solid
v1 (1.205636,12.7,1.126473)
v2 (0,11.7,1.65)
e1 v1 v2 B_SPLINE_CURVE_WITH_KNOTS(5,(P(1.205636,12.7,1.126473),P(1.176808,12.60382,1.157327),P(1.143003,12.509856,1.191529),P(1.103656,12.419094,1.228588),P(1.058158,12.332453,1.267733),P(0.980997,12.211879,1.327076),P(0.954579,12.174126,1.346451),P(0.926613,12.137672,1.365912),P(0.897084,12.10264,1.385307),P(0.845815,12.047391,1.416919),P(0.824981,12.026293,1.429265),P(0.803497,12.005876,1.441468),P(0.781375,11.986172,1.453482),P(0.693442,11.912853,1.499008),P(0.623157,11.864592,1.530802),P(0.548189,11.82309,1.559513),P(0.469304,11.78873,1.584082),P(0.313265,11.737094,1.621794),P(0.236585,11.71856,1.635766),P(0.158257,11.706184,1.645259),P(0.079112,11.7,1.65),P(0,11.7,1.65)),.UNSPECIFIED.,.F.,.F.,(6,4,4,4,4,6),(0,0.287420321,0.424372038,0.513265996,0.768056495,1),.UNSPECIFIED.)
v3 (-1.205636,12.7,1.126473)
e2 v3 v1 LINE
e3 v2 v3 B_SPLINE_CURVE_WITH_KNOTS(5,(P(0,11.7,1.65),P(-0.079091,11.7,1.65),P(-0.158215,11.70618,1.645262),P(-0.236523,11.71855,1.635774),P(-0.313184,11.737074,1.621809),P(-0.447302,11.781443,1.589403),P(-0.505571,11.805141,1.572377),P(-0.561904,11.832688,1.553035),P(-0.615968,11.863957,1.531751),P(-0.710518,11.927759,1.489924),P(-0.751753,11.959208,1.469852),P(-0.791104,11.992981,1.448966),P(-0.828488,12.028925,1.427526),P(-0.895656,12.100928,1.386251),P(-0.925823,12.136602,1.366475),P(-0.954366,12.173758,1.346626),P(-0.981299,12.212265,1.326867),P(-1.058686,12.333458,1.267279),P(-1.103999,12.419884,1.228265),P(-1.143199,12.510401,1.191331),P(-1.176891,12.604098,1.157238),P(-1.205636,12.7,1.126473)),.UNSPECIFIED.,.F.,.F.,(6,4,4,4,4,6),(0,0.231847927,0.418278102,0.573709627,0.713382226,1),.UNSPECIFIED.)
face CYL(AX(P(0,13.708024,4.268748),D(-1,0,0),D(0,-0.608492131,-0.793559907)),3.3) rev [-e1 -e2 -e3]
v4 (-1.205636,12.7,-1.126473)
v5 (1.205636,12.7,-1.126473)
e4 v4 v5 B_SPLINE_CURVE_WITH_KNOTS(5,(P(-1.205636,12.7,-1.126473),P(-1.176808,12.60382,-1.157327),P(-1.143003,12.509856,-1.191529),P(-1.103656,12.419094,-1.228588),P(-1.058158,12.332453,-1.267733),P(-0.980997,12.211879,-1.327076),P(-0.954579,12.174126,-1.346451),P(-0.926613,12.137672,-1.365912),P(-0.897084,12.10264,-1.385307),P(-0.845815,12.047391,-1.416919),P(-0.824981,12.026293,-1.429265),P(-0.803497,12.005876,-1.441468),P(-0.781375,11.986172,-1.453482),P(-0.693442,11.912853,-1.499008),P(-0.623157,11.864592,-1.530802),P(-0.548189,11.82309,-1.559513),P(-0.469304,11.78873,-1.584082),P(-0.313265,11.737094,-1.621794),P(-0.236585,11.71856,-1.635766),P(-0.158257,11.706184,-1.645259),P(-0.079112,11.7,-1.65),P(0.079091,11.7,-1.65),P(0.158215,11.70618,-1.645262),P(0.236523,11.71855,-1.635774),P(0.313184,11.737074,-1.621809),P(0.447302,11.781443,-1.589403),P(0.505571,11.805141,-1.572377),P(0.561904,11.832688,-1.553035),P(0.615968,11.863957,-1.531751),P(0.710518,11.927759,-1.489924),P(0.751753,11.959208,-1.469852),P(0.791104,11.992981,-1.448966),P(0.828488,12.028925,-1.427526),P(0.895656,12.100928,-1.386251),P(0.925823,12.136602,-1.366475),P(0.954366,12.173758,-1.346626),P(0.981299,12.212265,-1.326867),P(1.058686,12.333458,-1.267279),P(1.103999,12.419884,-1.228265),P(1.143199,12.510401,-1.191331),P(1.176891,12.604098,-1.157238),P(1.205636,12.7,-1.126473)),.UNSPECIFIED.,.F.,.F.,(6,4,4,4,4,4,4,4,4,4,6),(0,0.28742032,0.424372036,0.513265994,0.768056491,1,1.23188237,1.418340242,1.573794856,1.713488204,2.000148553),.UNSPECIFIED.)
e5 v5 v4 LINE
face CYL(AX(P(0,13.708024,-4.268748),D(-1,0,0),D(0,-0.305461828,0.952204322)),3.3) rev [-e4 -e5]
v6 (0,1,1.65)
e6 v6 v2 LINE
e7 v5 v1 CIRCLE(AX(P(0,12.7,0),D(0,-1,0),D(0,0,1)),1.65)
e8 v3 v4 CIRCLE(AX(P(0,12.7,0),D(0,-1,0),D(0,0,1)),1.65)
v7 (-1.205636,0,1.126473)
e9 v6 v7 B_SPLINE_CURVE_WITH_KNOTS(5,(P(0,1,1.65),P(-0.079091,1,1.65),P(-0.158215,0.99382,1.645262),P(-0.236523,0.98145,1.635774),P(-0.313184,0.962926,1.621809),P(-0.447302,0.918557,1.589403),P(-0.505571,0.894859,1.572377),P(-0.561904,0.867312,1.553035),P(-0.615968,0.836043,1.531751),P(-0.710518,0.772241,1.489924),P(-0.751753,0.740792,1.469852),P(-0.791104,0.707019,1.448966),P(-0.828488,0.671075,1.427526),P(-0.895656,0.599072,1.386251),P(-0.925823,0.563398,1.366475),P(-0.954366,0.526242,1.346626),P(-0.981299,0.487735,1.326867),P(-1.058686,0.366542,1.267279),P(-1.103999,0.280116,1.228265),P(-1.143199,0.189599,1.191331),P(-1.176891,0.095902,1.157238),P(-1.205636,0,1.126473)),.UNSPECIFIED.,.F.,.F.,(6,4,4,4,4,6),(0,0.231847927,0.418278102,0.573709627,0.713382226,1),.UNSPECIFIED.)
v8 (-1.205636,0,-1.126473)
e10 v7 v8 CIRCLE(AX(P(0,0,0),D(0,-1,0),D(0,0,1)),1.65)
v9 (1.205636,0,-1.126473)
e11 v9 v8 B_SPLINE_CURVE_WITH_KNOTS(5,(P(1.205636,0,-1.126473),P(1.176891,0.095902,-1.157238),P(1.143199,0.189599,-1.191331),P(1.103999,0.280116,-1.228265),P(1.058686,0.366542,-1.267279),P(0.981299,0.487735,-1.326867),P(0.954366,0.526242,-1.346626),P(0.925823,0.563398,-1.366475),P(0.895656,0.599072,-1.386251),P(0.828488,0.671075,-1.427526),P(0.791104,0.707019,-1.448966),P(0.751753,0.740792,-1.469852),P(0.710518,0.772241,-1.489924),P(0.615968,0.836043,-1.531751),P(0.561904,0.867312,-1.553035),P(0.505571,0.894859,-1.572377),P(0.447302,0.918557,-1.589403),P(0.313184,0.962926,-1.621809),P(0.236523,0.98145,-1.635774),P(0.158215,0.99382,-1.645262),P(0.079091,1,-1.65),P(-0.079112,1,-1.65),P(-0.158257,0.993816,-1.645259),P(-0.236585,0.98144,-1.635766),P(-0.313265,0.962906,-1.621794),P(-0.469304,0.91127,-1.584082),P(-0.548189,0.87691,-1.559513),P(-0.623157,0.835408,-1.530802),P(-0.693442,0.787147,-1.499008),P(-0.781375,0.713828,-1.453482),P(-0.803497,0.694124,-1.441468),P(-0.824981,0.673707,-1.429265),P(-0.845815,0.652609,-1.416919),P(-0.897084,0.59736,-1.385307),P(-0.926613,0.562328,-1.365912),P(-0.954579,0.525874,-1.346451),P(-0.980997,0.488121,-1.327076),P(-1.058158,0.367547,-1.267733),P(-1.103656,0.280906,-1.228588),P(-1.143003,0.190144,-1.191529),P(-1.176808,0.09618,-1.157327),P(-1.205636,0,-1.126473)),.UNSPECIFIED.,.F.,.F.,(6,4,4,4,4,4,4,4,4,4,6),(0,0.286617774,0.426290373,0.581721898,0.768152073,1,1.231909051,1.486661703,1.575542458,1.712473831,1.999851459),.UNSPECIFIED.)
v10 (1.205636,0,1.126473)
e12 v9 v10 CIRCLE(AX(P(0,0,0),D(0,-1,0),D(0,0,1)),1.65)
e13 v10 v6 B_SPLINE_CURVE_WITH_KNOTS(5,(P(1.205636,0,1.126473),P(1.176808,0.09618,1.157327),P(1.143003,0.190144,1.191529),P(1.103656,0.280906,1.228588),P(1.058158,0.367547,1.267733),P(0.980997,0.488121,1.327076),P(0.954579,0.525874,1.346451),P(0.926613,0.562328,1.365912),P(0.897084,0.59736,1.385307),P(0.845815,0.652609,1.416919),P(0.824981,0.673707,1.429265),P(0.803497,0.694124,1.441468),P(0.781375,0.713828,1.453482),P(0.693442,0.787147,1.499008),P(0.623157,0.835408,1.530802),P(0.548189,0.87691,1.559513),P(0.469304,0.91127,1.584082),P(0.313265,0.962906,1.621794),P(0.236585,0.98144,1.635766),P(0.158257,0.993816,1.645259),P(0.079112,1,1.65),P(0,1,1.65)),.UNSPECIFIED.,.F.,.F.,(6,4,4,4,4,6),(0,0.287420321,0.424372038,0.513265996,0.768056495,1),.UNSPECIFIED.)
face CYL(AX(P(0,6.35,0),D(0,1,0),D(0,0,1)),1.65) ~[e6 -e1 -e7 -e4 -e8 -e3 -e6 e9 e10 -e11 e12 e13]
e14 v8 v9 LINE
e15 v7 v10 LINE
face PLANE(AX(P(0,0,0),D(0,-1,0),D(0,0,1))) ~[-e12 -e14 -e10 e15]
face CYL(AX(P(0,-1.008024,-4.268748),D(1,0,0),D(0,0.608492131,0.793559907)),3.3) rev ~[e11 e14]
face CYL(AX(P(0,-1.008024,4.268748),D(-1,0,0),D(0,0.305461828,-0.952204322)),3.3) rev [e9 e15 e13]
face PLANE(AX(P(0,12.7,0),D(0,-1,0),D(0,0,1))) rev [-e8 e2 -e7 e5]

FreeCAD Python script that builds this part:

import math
import FreeCAD as App
import Part
import Sketcher

doc = App.newDocument("Part")
body = doc.addObject("PartDesign::Body", "Body")

# Sketch on YZ plane
sketch1 = doc.addObject("Sketcher::SketchObject", "Sketch")
body.addObject(sketch1)
sketch1.AttachmentSupport = (doc.YZ_Plane, [""])
sketch1.MapMode = "FlatFace"
sketch1.addGeometry(Part.LineSegment(App.Vector(0, 1.6, 0), App.Vector(0, 0, 0)), False)
sketch1.addGeometry(Part.LineSegment(App.Vector(0, 0, 0), App.Vector(12.7, 0, 0)), False)
sketch1.addGeometry(Part.LineSegment(App.Vector(12.7, 0, 0), App.Vector(12.7, 1.6, 0)), False)
sketch1.addGeometry(Part.LineSegment(App.Vector(12.7, 1.6, 0), App.Vector(0, 1.6, 0)), False)
sketch1.addConstraint(Sketcher.Constraint("Coincident", 0, 2, 1, 1))
sketch1.addConstraint(Sketcher.Constraint("Coincident", 1, 2, 2, 1))
sketch1.addConstraint(Sketcher.Constraint("Coincident", 2, 2, 3, 1))
sketch1.addConstraint(Sketcher.Constraint("Coincident", 3, 2, 0, 1))
sketch1.addConstraint(Sketcher.Constraint("Vertical", 0))
sketch1.addConstraint(Sketcher.Constraint("Horizontal", 1))
sketch1.addConstraint(Sketcher.Constraint("Vertical", 2))
sketch1.addConstraint(Sketcher.Constraint("Horizontal", 3))
sketch1.addConstraint(Sketcher.Constraint("Coincident", 0, 2, -1, 1))
sketch1.addConstraint(Sketcher.Constraint("DistanceX", 1, 1, 1, 2, 12.7))
sketch1.addConstraint(Sketcher.Constraint("DistanceY", 0, 2, 0, 1, 1.65))
revolution = doc.addObject("PartDesign::Revolution", "Revolution")
body.addObject(revolution)
revolution.Profile = sketch1
revolution.ReferenceAxis = (sketch1, ["H_Axis"])
revolution.Angle = 360

# Sketch on YZ plane
sketch2 = doc.addObject("Sketcher::SketchObject", "Sketch001")
body.addObject(sketch2)
sketch2.AttachmentSupport = (doc.YZ_Plane, [""])
sketch2.MapMode = "FlatFace"
sketch2.addGeometry(Part.LineSegment(App.Vector(0, 1.6, 0), App.Vector(0, 1.1, 0)), False)
sketch2.addGeometry(Part.ArcOfCircle(Part.Circle(App.Vector(-1, 4.3, 0), App.Vector(0, 0, 1), 3.3), math.radians(-72.21), math.radians(-52.52)), False)
sketch2.addGeometry(Part.LineSegment(App.Vector(1, 1.6, 0), App.Vector(0, 1.6, 0)), False)
sketch2.addGeometry(Part.ArcOfCircle(Part.Circle(App.Vector(13.7, 4.3, 0), App.Vector(0, 0, 1), 3.3), math.radians(-127.48), math.radians(-107.79)), False)
sketch2.addGeometry(Part.LineSegment(App.Vector(12.7, 1.1, 0), App.Vector(12.7, 1.6, 0)), False)
sketch2.addGeometry(Part.LineSegment(App.Vector(12.7, 1.6, 0), App.Vector(11.7, 1.6, 0)), False)
sketch2.addGeometry(Part.LineSegment(App.Vector(11.7, -1.6, 0), App.Vector(12.7, -1.6, 0)), False)
sketch2.addGeometry(Part.LineSegment(App.Vector(12.7, -1.6, 0), App.Vector(12.7, -1.1, 0)), False)
sketch2.addGeometry(Part.ArcOfCircle(Part.Circle(App.Vector(13.7, -4.3, 0), App.Vector(0, 0, 1), 3.3), math.radians(107.79), math.radians(127.48)), False)
sketch2.addGeometry(Part.ArcOfCircle(Part.Circle(App.Vector(-1, -4.3, 0), App.Vector(0, 0, 1), 3.3), math.radians(52.52), math.radians(72.21)), False)
sketch2.addGeometry(Part.LineSegment(App.Vector(0, -1.1, 0), App.Vector(0, -1.6, 0)), False)
sketch2.addGeometry(Part.LineSegment(App.Vector(0, -1.6, 0), App.Vector(1, -1.6, 0)), False)
sketch2.addConstraint(Sketcher.Constraint("Coincident", 0, 2, 1, 1))
sketch2.addConstraint(Sketcher.Constraint("Coincident", 1, 2, 2, 1))
sketch2.addConstraint(Sketcher.Constraint("Coincident", 2, 2, 0, 1))
sketch2.addConstraint(Sketcher.Constraint("Coincident", 3, 2, 4, 1))
sketch2.addConstraint(Sketcher.Constraint("Coincident", 4, 2, 5, 1))
sketch2.addConstraint(Sketcher.Constraint("Coincident", 5, 2, 3, 1))
sketch2.addConstraint(Sketcher.Constraint("Coincident", 6, 2, 7, 1))
sketch2.addConstraint(Sketcher.Constraint("Coincident", 7, 2, 8, 1))
sketch2.addConstraint(Sketcher.Constraint("Coincident", 8, 2, 6, 1))
sketch2.addConstraint(Sketcher.Constraint("Coincident", 9, 2, 10, 1))
sketch2.addConstraint(Sketcher.Constraint("Coincident", 10, 2, 11, 1))
sketch2.addConstraint(Sketcher.Constraint("Coincident", 11, 2, 9, 1))
sketch2.addConstraint(Sketcher.Constraint("Vertical", 0))
sketch2.addConstraint(Sketcher.Constraint("Horizontal", 2))
sketch2.addConstraint(Sketcher.Constraint("Vertical", 4))
sketch2.addConstraint(Sketcher.Constraint("Horizontal", 5))
sketch2.addConstraint(Sketcher.Constraint("Horizontal", 6))
sketch2.addConstraint(Sketcher.Constraint("Vertical", 7))
sketch2.addConstraint(Sketcher.Constraint("Vertical", 10))
sketch2.addConstraint(Sketcher.Constraint("Horizontal", 11))
sketch2.addConstraint(Sketcher.Constraint("Equal", 1, 3))
sketch2.addConstraint(Sketcher.Constraint("Equal", 3, 8))
sketch2.addConstraint(Sketcher.Constraint("Equal", 8, 9))
sketch2.addConstraint(Sketcher.Constraint("Symmetric", 0, 2, 9, 2, -1, 1))
sketch2.addConstraint(Sketcher.Constraint("Symmetric", 3, 3, 8, 3, -1))
sketch2.addConstraint(Sketcher.Constraint("Symmetric", 1, 3, 9, 3, -1))
sketch2.addConstraint(Sketcher.Constraint("Symmetric", 4, 2, 6, 2, -1))
sketch2.addConstraint(Sketcher.Constraint("Horizontal", 1, 3, 3, 3))
sketch2.addConstraint(Sketcher.Constraint("Horizontal", 0, 2, 3, 2))
sketch2.addConstraint(Sketcher.Constraint("Horizontal", 2, 2, 4, 2))
sketch2.addConstraint(Sketcher.Constraint("Horizontal", 8, 2, 10, 2))
sketch2.addConstraint(Sketcher.Constraint("Radius", 1, 3.3))
sketch2.addConstraint(Sketcher.Constraint("DistanceX", 2, 2, 2, 1, 1.0))
sketch2.addConstraint(Sketcher.Constraint("DistanceX", -1, 1, 3, 2, 12.7))
sketch2.addConstraint(Sketcher.Constraint("DistanceY", 6, 2, 4, 2, 3.3))
sketch2.addConstraint(Sketcher.Constraint("DistanceY", 0, 2, 0, 1, 0.523527))
pocket1 = doc.addObject("PartDesign::Pocket", "Pocket")
body.addObject(pocket1)
pocket1.Profile = sketch2
pocket1.Length = 3.3
pocket1.Midplane = True

doc.recompute()
